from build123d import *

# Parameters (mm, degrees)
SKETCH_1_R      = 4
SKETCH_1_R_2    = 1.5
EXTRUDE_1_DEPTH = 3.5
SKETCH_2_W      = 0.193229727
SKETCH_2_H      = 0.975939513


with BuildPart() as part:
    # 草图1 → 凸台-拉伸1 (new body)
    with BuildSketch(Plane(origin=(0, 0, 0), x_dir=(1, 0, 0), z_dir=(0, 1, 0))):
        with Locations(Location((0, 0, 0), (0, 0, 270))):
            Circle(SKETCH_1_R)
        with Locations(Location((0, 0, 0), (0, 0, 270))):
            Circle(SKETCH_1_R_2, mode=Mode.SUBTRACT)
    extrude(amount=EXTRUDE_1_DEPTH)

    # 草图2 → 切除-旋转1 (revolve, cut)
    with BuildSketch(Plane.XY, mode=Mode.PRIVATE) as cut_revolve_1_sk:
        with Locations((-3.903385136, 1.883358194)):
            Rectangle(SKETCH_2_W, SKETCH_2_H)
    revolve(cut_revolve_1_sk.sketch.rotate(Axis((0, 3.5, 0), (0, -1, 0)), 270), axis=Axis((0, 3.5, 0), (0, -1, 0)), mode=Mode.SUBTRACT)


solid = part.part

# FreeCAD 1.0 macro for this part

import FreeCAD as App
import Part
import Sketcher

V = App.Vector
Q = App.Units.Quantity


def add_polygon(sketch, points):
    """Adds a closed chain of lines whose ends are joined by coincident constraints."""
    first, n = sketch.GeometryCount, len(points)
    for a, b in zip(points, points[1:] + points[:1]):
        sketch.addGeometry(Part.LineSegment(App.Vector(*a, 0), App.Vector(*b, 0)), False)
    for i in range(n):
        sketch.addConstraint(Sketcher.Constraint("Coincident", first + i, 2, first + (i + 1) % n, 1))

doc = App.newDocument("Part")
body = doc.addObject("PartDesign::Body", "Body")

sketch1 = body.newObject("Sketcher::SketchObject", "Sketch")
sketch1.AttachmentSupport = (doc.getObject("XZ_Plane"), [""])
sketch1.MapMode = "FlatFace"
sketch1.addGeometry(Part.Circle(V(0, 0, 0), V(0, 0, 1), 4), False)
sketch1.addGeometry(Part.Circle(V(0, 0, 0), V(0, 0, 1), 1.5), False)
sketch1.addConstraint(Sketcher.Constraint("Coincident", 0, 3, -1, 1))
sketch1.addConstraint(Sketcher.Constraint("Coincident", 1, 3, -1, 1))
sketch1.addConstraint(Sketcher.Constraint("Diameter", 0, Q("8 mm")))
sketch1.addConstraint(Sketcher.Constraint("Diameter", 1, Q("3 mm")))
pad1 = body.newObject("PartDesign::Pad", "Pad")
pad1.Profile = sketch1
pad1.Length = 3.5
pad1.Reversed = True

sketch2 = body.newObject("Sketcher::SketchObject", "Sketch001")
sketch2.AttachmentSupport = (doc.getObject("XY_Plane"), [""])
sketch2.MapMode = "FlatFace"
add_polygon(sketch2, [(-4, 2.371328), (-4, 1.395388), (-3.80677, 1.395388), (-3.80677, 2.371328)])
sketch2.addConstraint(Sketcher.Constraint("Vertical", 0))
sketch2.addConstraint(Sketcher.Constraint("Horizontal", 1))
sketch2.addConstraint(Sketcher.Constraint("Vertical", 2))
sketch2.addConstraint(Sketcher.Constraint("Horizontal", 3))
sketch2.addConstraint(Sketcher.Constraint("DistanceX", 0, 2, -1, 1, Q("4 mm")))
sketch2.addConstraint(Sketcher.Constraint("DistanceX", 1, 1, 1, 2, Q("0.19323 mm")))
sketch2.addConstraint(Sketcher.Constraint("DistanceY", 0, 2, 0, 1, Q("0.97594 mm")))
sketch2.addConstraint(Sketcher.Constraint("DistanceY", -1, 1, 0, 2, Q("1.395388 mm")))
groove = body.newObject("PartDesign::Groove", "Groove")
groove.Profile = sketch2
groove.ReferenceAxis = (sketch2, ["V_Axis"])
groove.Angle = 360

doc.recompute()
